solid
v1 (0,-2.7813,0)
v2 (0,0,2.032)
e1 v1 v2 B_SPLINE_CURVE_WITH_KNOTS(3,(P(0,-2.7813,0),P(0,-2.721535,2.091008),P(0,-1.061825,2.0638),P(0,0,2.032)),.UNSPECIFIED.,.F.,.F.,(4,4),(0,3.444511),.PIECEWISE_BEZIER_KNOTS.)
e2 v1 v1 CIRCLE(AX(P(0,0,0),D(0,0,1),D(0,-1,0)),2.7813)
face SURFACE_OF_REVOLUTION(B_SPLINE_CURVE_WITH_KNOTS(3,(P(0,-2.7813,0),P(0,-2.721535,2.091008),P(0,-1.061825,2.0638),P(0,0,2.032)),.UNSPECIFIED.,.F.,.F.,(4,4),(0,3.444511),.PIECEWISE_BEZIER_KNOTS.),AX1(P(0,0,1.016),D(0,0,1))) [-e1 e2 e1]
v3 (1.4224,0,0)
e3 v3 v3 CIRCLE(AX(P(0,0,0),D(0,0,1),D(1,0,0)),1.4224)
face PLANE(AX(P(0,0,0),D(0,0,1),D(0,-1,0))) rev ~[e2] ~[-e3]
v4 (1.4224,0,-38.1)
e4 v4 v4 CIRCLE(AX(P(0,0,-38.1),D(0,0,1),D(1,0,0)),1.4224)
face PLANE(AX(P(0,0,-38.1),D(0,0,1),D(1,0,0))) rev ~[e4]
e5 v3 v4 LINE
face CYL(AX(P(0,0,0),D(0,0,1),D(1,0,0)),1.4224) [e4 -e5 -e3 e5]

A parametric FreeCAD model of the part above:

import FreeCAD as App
import Part
import Sketcher
from FreeCAD import Vector
Q = App.Units.Quantity

doc = App.newDocument("Part")
params = doc.addObject("Spreadsheet::Sheet", "Params")
for row, (alias, value) in enumerate([
    ("sketch1_diameter", "0.112 in"),
    ("pad1_length", "1.5 in"),
    ("revolution_angle", "360 deg"),
], start=1):
    params.set(f"A{row}", alias)
    params.set(f"B{row}", "=" + value)
    params.setAlias(f"B{row}", alias)

body = doc.addObject("PartDesign::Body", "Body")

sketch1 = body.newObject("Sketcher::SketchObject", "Sketch")
sketch1.AttachmentSupport = (doc.getObject("XY_Plane"), [""])
sketch1.MapMode = "FlatFace"
sketch1.addGeometry(Part.Circle(Vector(0, 0, 0), Vector(0, 0, 1), 1.4), False)
sketch1.addConstraint([
    Sketcher.Constraint("Coincident", 0, 3, -1, 1),
    Sketcher.Constraint("Diameter", 0, Q("0.112 in")),
])
sketch1.setExpression("Constraints[1]", "Params.sketch1_diameter")
pad1 = body.newObject("PartDesign::Pad", "Pad")
pad1.Profile = sketch1
pad1.setExpression("Length", "Params.pad1_length")
pad1.Reversed = True

sketch2 = body.newObject("Sketcher::SketchObject", "Sketch001")
sketch2.AttachmentSupport = (doc.getObject("YZ_Plane"), [""])
sketch2.MapMode = "FlatFace"
sketch2.addGeometry([
    Part.BSplineCurve([Vector(-2.7813, 0, 0), Vector(-2.721535, 2.091008, 0), Vector(-1.061825, 2.0638, 0), Vector(0, 2.032, 0)], [4, 4], [0, 3.444511], False, 3, [1, 1, 1, 1], False),
    Part.LineSegment(Vector(-2.7813, 0, 0), Vector(0, 0, 0)),
    Part.LineSegment(Vector(0, 0, 0), Vector(0, 2.032, 0)),
], False)
sketch2.addConstraint([
    Sketcher.Constraint("Block", 0),
    Sketcher.Constraint("Coincident", 0, 1, 1, 1),
    Sketcher.Constraint("Coincident", 1, 2, 2, 1),
    Sketcher.Constraint("Coincident", 2, 2, 0, 2),
    Sketcher.Constraint("Horizontal", 1),
    Sketcher.Constraint("Vertical", 2),
])
revolution = body.newObject("PartDesign::Revolution", "Revolution")
revolution.Profile = sketch2
revolution.ReferenceAxis = (sketch2, ["V_Axis"])
revolution.setExpression("Angle", "Params.revolution_angle")

doc.recompute()
